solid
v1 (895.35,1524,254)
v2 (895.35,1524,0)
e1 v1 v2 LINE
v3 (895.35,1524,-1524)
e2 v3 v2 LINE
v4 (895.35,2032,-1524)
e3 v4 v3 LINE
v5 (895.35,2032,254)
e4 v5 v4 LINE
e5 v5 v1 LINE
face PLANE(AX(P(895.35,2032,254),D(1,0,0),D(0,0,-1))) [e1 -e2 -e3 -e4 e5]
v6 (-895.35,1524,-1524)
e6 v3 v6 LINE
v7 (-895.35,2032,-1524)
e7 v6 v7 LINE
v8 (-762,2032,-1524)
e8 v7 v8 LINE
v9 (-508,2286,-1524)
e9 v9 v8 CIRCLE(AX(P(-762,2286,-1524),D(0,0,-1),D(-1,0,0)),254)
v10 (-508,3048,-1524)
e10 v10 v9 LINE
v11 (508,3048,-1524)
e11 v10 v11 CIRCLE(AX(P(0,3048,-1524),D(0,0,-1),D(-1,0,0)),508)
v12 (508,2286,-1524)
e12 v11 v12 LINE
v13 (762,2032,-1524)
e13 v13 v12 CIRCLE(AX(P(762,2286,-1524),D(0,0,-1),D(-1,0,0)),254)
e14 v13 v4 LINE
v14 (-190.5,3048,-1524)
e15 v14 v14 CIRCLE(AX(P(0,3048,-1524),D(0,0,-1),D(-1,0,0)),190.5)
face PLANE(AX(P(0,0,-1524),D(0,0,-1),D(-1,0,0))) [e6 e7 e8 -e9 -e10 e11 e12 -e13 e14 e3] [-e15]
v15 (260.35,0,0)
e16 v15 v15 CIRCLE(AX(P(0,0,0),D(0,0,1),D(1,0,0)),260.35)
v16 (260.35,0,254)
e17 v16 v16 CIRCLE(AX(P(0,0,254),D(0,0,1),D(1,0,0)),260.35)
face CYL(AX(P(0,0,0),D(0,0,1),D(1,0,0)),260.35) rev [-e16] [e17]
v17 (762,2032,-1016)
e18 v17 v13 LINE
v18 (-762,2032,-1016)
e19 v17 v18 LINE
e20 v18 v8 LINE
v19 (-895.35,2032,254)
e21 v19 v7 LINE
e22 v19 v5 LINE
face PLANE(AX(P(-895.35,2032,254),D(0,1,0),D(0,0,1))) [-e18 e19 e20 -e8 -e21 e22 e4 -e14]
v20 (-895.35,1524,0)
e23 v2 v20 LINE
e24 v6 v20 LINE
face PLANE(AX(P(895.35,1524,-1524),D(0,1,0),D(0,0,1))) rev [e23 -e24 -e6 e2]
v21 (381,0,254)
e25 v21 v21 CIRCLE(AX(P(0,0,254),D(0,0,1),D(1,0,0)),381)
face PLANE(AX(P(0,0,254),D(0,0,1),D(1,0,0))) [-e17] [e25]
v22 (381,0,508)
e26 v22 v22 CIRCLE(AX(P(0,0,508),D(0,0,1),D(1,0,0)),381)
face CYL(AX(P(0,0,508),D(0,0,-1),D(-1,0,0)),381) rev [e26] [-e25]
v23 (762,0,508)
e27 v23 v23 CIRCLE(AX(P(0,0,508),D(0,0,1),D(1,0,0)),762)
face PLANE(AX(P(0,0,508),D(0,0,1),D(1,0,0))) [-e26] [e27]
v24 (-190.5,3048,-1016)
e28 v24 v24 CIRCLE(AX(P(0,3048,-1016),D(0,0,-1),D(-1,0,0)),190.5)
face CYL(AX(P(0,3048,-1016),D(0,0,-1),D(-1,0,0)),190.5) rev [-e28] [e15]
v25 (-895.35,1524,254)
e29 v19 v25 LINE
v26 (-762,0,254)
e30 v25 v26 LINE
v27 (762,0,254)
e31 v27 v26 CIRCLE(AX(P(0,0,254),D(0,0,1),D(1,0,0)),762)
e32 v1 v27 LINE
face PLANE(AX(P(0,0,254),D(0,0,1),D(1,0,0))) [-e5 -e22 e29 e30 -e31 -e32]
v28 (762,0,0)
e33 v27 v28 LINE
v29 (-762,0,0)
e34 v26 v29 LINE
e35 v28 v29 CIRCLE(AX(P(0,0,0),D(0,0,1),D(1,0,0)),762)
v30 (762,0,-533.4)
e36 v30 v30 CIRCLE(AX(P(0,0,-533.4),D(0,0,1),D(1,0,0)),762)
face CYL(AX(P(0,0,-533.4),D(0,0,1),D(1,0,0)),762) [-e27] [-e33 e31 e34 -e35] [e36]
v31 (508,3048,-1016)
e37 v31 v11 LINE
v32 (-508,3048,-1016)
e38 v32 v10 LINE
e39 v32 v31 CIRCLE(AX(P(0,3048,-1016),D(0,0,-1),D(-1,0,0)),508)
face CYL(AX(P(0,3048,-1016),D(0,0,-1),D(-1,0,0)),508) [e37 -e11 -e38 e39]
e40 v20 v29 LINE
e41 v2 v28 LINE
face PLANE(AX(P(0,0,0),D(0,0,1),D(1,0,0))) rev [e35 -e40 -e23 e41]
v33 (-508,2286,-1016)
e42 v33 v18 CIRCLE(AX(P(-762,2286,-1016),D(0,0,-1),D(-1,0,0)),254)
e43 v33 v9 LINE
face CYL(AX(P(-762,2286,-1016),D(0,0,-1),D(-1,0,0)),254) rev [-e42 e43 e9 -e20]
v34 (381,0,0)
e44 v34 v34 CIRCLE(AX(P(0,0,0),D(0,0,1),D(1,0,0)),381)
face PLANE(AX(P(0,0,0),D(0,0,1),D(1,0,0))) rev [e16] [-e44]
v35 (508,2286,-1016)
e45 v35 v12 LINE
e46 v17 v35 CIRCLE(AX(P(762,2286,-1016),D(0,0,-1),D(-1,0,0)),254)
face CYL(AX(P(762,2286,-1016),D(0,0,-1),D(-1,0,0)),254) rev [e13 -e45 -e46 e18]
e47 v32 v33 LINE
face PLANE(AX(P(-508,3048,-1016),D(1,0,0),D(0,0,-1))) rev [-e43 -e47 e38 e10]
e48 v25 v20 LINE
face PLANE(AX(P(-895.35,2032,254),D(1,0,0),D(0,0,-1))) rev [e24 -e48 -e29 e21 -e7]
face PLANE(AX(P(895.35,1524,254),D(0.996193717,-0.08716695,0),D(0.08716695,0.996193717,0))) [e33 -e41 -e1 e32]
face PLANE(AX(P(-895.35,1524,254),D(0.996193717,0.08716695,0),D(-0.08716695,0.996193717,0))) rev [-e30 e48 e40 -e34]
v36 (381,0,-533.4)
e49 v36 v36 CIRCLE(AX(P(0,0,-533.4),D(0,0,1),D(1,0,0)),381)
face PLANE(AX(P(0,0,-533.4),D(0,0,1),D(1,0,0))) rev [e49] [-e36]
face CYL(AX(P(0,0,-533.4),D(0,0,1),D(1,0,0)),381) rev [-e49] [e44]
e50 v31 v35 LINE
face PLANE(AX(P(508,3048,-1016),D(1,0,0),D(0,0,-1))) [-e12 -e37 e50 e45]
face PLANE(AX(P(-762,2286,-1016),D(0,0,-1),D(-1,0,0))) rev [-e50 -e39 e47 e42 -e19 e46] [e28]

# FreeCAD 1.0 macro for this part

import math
import FreeCAD as App
import Part
import Sketcher
from FreeCAD import Vector
Q = App.Units.Quantity


def add_polygon(sketch, points):
    """Adds a closed chain of lines whose ends are joined by coincident constraints."""
    first, n = sketch.GeometryCount, len(points)
    for a, b in zip(points, points[1:] + points[:1]):
        sketch.addGeometry(Part.LineSegment(App.Vector(*a, 0), App.Vector(*b, 0)), False)
    for i in range(n):
        sketch.addConstraint(Sketcher.Constraint("Coincident", first + i, 2, first + (i + 1) % n, 1))

doc = App.newDocument("Part")
body = doc.addObject("PartDesign::Body", "Body")

# Sketch on XY plane
sketch1 = body.newObject("Sketcher::SketchObject", "Sketch")
sketch1.AttachmentSupport = (doc.getObject("XY_Plane"), [""])
sketch1.MapMode = "FlatFace"
sketch1.addGeometry(Part.Circle(Vector(0, 0, 0), Vector(0, 0, 1), 762), False)
sketch1.addGeometry(Part.Circle(Vector(0, 0, 0), Vector(0, 0, 1), 381), False)
sketch1.addConstraint(Sketcher.Constraint("Coincident", 0, 3, -1, 1))
sketch1.addConstraint(Sketcher.Constraint("Coincident", 1, 3, -1, 1))
sketch1.addConstraint(Sketcher.Constraint("Diameter", 0, Q("60 in")))
sketch1.addConstraint(Sketcher.Constraint("Diameter", 1, Q("30 in")))
pad1 = body.newObject("PartDesign::Pad", "Pad")
pad1.Profile = sketch1
pad1.Length = Q("21 in")
pad1.Reversed = True

# Sketch on XY plane
sketch2 = body.newObject("Sketcher::SketchObject", "Sketch001")
sketch2.AttachmentSupport = (doc.getObject("XY_Plane"), [""])
sketch2.MapMode = "FlatFace"
sketch2.AttachmentOffset = App.Placement(Vector(0, 0, 10 * 25.4), App.Rotation())
sketch2.addGeometry(Part.LineSegment(Vector(-895, 2032, 0), Vector(-895, 1524, 0)), False)
sketch2.addGeometry(Part.LineSegment(Vector(-895, 1524, 0), Vector(-762, 0, 0)), False)
sketch2.addGeometry(Part.ArcOfCircle(Part.Circle(Vector(0, 0, 0), Vector(0, 0, 1), 762), math.radians(180), math.radians(360)), False)
sketch2.addGeometry(Part.LineSegment(Vector(762, 0, 0), Vector(895, 1524, 0)), False)
sketch2.addGeometry(Part.LineSegment(Vector(895, 1524, 0), Vector(895, 2032, 0)), False)
sketch2.addGeometry(Part.LineSegment(Vector(895, 2032, 0), Vector(-895, 2032, 0)), False)
sketch2.addConstraint(Sketcher.Constraint("Coincident", 0, 2, 1, 1))
sketch2.addConstraint(Sketcher.Constraint("Coincident", 1, 2, 2, 1))
sketch2.addConstraint(Sketcher.Constraint("Coincident", 2, 2, 3, 1))
sketch2.addConstraint(Sketcher.Constraint("Coincident", 3, 2, 4, 1))
sketch2.addConstraint(Sketcher.Constraint("Coincident", 4, 2, 5, 1))
sketch2.addConstraint(Sketcher.Constraint("Coincident", 5, 2, 0, 1))
sketch2.addConstraint(Sketcher.Constraint("Vertical", 0))
sketch2.addConstraint(Sketcher.Constraint("Vertical", 4))
sketch2.addConstraint(Sketcher.Constraint("Horizontal", 5))
sketch2.addConstraint(Sketcher.Constraint("Coincident", 2, 3, -1, 1))
sketch2.addConstraint(Sketcher.Constraint("Symmetric", 0, 2, 3, 2, -2))
sketch2.addConstraint(Sketcher.Constraint("PointOnObject", 1, 2, -1))
sketch2.addConstraint(Sketcher.Constraint("Equal", 1, 3))
sketch2.addConstraint(Sketcher.Constraint("Radius", 2, Q("30 in")))
sketch2.addConstraint(Sketcher.Constraint("DistanceY", 0, 2, 0, 1, Q("20 in")))
sketch2.addConstraint(Sketcher.Constraint("DistanceX", 5, 2, 5, 1, Q("70.5 in")))
sketch2.addConstraint(Sketcher.Constraint("DistanceY", -1, 1, 0, 2, Q("60 in")))
pad2 = body.newObject("PartDesign::Pad", "Pad001")
pad2.Profile = sketch2
pad2.Length = Q("10 in")
pad2.Reversed = True

# Sketch on XY plane
sketch3 = body.newObject("Sketcher::SketchObject", "Sketch002")
sketch3.AttachmentSupport = (doc.getObject("XY_Plane"), [""])
sketch3.MapMode = "FlatFace"
sketch3.AttachmentOffset = App.Placement(Vector(0, 0, 10 * 25.4), App.Rotation())
sketch3.addGeometry(Part.Circle(Vector(0, 0, 0), Vector(0, 0, 1), 260), False)
sketch3.addConstraint(Sketcher.Constraint("Coincident", 0, 3, -1, 1))
sketch3.addConstraint(Sketcher.Constraint("Diameter", 0, Q("20.5 in")))
pocket1 = body.newObject("PartDesign::Pocket", "Pocket")
pocket1.Profile = sketch3
pocket1.Length = Q("10 in")

# Sketch on XY plane
sketch4 = body.newObject("Sketcher::SketchObject", "Sketch003")
sketch4.AttachmentSupport = (doc.getObject("XY_Plane"), [""])
sketch4.MapMode = "FlatFace"
sketch4.AttachmentOffset = App.Placement(Vector(0, 0, 20 * 25.4), App.Rotation())
sketch4.addGeometry(Part.Circle(Vector(0, 0, 0), Vector(0, 0, 1), 762), False)
sketch4.addGeometry(Part.Circle(Vector(0, 0, 0), Vector(0, 0, 1), 381), False)
sketch4.addConstraint(Sketcher.Constraint("Coincident", 0, 3, -1, 1))
sketch4.addConstraint(Sketcher.Constraint("Coincident", 1, 3, -1, 1))
sketch4.addConstraint(Sketcher.Constraint("Diameter", 0, Q("60 in")))
sketch4.addConstraint(Sketcher.Constraint("Diameter", 1, Q("30 in")))
pad3 = body.newObject("PartDesign::Pad", "Pad002")
pad3.Profile = sketch4
pad3.Length = Q("10 in")
pad3.Reversed = True

# Sketch on XY plane
sketch5 = body.newObject("Sketcher::SketchObject", "Sketch004")
sketch5.AttachmentSupport = (doc.getObject("XY_Plane"), [""])
sketch5.MapMode = "FlatFace"
add_polygon(sketch5, [(895, 2032), (895, 1524), (-895, 1524), (-895, 2032)])  # lines 0-3
sketch5.addConstraint(Sketcher.Constraint("Vertical", 0))
sketch5.addConstraint(Sketcher.Constraint("Horizontal", 1))
sketch5.addConstraint(Sketcher.Constraint("Vertical", 2))
sketch5.addConstraint(Sketcher.Constraint("Horizontal", 3))
sketch5.addConstraint(Sketcher.Constraint("DistanceY", 0, 2, 0, 1, Q("20 in")))
sketch5.addConstraint(Sketcher.Constraint("DistanceX", 1, 2, 1, 1, Q("70.5 in")))
sketch5.addConstraint(Sketcher.Constraint("DistanceY", -1, 1, 0, 2, Q("60 in")))
sketch5.addConstraint(Sketcher.Constraint("DistanceX", -1, 1, 0, 2, Q("35.25 in")))
pad4 = body.newObject("PartDesign::Pad", "Pad003")
pad4.Profile = sketch5
pad4.Length = Q("60 in")
pad4.Reversed = True

# Sketch on XY plane
sketch6 = body.newObject("Sketcher::SketchObject", "Sketch005")
sketch6.AttachmentSupport = (doc.getObject("XY_Plane"), [""])
sketch6.MapMode = "FlatFace"
sketch6.AttachmentOffset = App.Placement(Vector(0, 0, -60 * 25.4), App.Rotation())
sketch6.addGeometry(Part.LineSegment(Vector(508, 3048, 0), Vector(508, 2286, 0)), False)
sketch6.addGeometry(Part.ArcOfCircle(Part.Circle(Vector(762, 2286, 0), Vector(0, 0, 1), 254), math.radians(-180), math.radians(-90)), False)
sketch6.addGeometry(Part.LineSegment(Vector(762, 2032, 0), Vector(895, 2032, 0)), False)
sketch6.addGeometry(Part.LineSegment(Vector(895, 2032, 0), Vector(895, 1524, 0)), False)
sketch6.addGeometry(Part.LineSegment(Vector(895, 1524, 0), Vector(-895, 1524, 0)), False)
sketch6.addGeometry(Part.LineSegment(Vector(-895, 1524, 0), Vector(-895, 2032, 0)), False)
sketch6.addGeometry(Part.LineSegment(Vector(-895, 2032, 0), Vector(-762, 2032, 0)), False)
sketch6.addGeometry(Part.ArcOfCircle(Part.Circle(Vector(-762, 2286, 0), Vector(0, 0, 1), 254), math.radians(-90), math.radians(0)), False)
sketch6.addGeometry(Part.LineSegment(Vector(-508, 2286, 0), Vector(-508, 3048, 0)), False)
sketch6.addGeometry(Part.ArcOfCircle(Part.Circle(Vector(0, 3048, 0), Vector(0, 0, 1), 508), math.radians(0), math.radians(180)), False)
sketch6.addConstraint(Sketcher.Constraint("Tangent", 0, 2, 1, 1))
sketch6.addConstraint(Sketcher.Constraint("Tangent", 1, 2, 2, 1))
sketch6.addConstraint(Sketcher.Constraint("Coincident", 2, 2, 3, 1))
sketch6.addConstraint(Sketcher.Constraint("Coincident", 3, 2, 4, 1))
sketch6.addConstraint(Sketcher.Constraint("Coincident", 4, 2, 5, 1))
sketch6.addConstraint(Sketcher.Constraint("Coincident", 5, 2, 6, 1))
sketch6.addConstraint(Sketcher.Constraint("Tangent", 6, 2, 7, 1))
sketch6.addConstraint(Sketcher.Constraint("Tangent", 7, 2, 8, 1))
sketch6.addConstraint(Sketcher.Constraint("Tangent", 8, 2, 9, 2))
sketch6.addConstraint(Sketcher.Constraint("Tangent", 9, 1, 0, 1))
sketch6.addConstraint(Sketcher.Constraint("Vertical", 0))
sketch6.addConstraint(Sketcher.Constraint("Horizontal", 2))
sketch6.addConstraint(Sketcher.Constraint("Vertical", 3))
sketch6.addConstraint(Sketcher.Constraint("Horizontal", 4))
sketch6.addConstraint(Sketcher.Constraint("Vertical", 5))
sketch6.addConstraint(Sketcher.Constraint("Horizontal", 6))
sketch6.addConstraint(Sketcher.Constraint("Vertical", 8))
sketch6.addConstraint(Sketcher.Constraint("Equal", 1, 7))
sketch6.addConstraint(Sketcher.Constraint("Symmetric", 1, 3, 7, 3, -2))
sketch6.addConstraint(Sketcher.Constraint("Equal", 2, 6))
sketch6.addConstraint(Sketcher.Constraint("Radius", 1, Q("10 in")))
sketch6.addConstraint(Sketcher.Constraint("Radius", 9, Q("20 in")))
sketch6.addConstraint(Sketcher.Constraint("DistanceY", 0, 2, 0, 1, Q("30 in")))
sketch6.addConstraint(Sketcher.Constraint("DistanceY", 3, 2, 3, 1, Q("20 in")))
sketch6.addConstraint(Sketcher.Constraint("DistanceX", 4, 2, 4, 1, Q("70.5 in")))
sketch6.addConstraint(Sketcher.Constraint("DistanceY", -1, 1, 1, 3, Q("90 in")))
pad5 = body.newObject("PartDesign::Pad", "Pad004")
pad5.Profile = sketch6
pad5.Length = Q("20 in")

# Sketch on XY plane
sketch7 = body.newObject("Sketcher::SketchObject", "Sketch006")
sketch7.AttachmentSupport = (doc.getObject("XY_Plane"), [""])
sketch7.MapMode = "FlatFace"
sketch7.AttachmentOffset = App.Placement(Vector(0, 0, -60 * 25.4), App.Rotation())
sketch7.addGeometry(Part.Circle(Vector(0, 3048, 0), Vector(0, 0, 1), 190), False)
sketch7.addConstraint(Sketcher.Constraint("PointOnObject", 0, 3, -2))
sketch7.addConstraint(Sketcher.Constraint("Diameter", 0, Q("15 in")))
sketch7.addConstraint(Sketcher.Constraint("DistanceY", -1, 1, 0, 3, Q("120 in")))
pocket2 = body.newObject("PartDesign::Pocket", "Pocket001")
pocket2.Profile = sketch7
pocket2.Length = Q("20 in")
pocket2.Reversed = True

doc.recompute()
